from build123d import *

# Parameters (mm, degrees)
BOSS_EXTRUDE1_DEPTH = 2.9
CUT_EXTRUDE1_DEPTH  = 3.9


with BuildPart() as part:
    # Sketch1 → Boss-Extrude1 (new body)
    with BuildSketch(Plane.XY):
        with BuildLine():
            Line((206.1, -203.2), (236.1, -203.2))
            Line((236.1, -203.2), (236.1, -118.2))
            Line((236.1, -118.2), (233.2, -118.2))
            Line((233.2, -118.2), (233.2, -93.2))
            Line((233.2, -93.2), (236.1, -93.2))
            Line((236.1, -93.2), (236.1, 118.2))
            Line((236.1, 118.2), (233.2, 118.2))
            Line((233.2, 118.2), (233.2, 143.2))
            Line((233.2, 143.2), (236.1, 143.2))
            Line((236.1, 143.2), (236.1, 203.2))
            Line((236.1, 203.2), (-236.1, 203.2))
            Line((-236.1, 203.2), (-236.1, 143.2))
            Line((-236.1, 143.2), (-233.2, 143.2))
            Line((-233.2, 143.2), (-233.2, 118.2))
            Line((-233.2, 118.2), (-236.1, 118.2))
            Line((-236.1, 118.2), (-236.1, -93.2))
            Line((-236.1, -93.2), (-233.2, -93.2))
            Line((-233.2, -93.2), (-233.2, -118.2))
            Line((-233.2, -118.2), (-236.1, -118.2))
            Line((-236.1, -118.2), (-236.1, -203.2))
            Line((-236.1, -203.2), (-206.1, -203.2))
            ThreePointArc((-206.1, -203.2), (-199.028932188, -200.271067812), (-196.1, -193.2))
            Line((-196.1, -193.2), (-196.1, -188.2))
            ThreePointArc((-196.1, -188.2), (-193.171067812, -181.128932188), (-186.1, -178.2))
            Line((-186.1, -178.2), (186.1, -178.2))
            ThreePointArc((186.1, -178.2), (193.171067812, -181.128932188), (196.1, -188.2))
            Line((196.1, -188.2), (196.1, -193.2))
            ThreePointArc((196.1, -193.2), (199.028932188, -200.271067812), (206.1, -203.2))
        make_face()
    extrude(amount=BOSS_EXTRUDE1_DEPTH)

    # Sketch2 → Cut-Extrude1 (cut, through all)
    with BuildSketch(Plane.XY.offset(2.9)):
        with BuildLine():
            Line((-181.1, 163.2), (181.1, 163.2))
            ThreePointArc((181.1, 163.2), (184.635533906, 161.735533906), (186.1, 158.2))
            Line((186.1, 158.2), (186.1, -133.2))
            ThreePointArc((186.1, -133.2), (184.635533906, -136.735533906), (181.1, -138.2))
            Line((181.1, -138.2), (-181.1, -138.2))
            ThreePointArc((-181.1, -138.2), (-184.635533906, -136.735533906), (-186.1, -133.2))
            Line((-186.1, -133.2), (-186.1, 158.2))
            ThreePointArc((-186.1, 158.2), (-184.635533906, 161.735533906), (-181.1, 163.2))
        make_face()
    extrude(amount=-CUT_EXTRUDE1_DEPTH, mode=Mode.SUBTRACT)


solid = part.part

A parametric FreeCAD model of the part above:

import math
import FreeCAD as App
import Part
import Sketcher

V = App.Vector

doc = App.newDocument("Part")
body = doc.addObject("PartDesign::Body", "Body")

# Sketch on XY plane
sketch1 = body.newObject("Sketcher::SketchObject", "Sketch")
sketch1.AttachmentSupport = (doc.getObject("XY_Plane"), [""])
sketch1.MapMode = "FlatFace"
sketch1.addGeometry(Part.LineSegment(V(206.1, -203.2, 0), V(236.1, -203.2, 0)), False)
sketch1.addGeometry(Part.LineSegment(V(236.1, -203.2, 0), V(236.1, -118.2, 0)), False)
sketch1.addGeometry(Part.LineSegment(V(236.1, -118.2, 0), V(233.2, -118.2, 0)), False)
sketch1.addGeometry(Part.LineSegment(V(233.2, -118.2, 0), V(233.2, -93.2, 0)), False)
sketch1.addGeometry(Part.LineSegment(V(233.2, -93.2, 0), V(236.1, -93.2, 0)), False)
sketch1.addGeometry(Part.LineSegment(V(236.1, -93.2, 0), V(236.1, 118.2, 0)), False)
sketch1.addGeometry(Part.LineSegment(V(236.1, 118.2, 0), V(233.2, 118.2, 0)), False)
sketch1.addGeometry(Part.LineSegment(V(233.2, 118.2, 0), V(233.2, 143.2, 0)), False)
sketch1.addGeometry(Part.LineSegment(V(233.2, 143.2, 0), V(236.1, 143.2, 0)), False)
sketch1.addGeometry(Part.LineSegment(V(236.1, 143.2, 0), V(236.1, 203.2, 0)), False)
sketch1.addGeometry(Part.LineSegment(V(236.1, 203.2, 0), V(-236.1, 203.2, 0)), False)
sketch1.addGeometry(Part.LineSegment(V(-236.1, 203.2, 0), V(-236.1, 143.2, 0)), False)
sketch1.addGeometry(Part.LineSegment(V(-236.1, 143.2, 0), V(-233.2, 143.2, 0)), False)
sketch1.addGeometry(Part.LineSegment(V(-233.2, 143.2, 0), V(-233.2, 118.2, 0)), False)
sketch1.addGeometry(Part.LineSegment(V(-233.2, 118.2, 0), V(-236.1, 118.2, 0)), False)
sketch1.addGeometry(Part.LineSegment(V(-236.1, 118.2, 0), V(-236.1, -93.2, 0)), False)
sketch1.addGeometry(Part.LineSegment(V(-236.1, -93.2, 0), V(-233.2, -93.2, 0)), False)
sketch1.addGeometry(Part.LineSegment(V(-233.2, -93.2, 0), V(-233.2, -118.2, 0)), False)
sketch1.addGeometry(Part.LineSegment(V(-233.2, -118.2, 0), V(-236.1, -118.2, 0)), False)
sketch1.addGeometry(Part.LineSegment(V(-236.1, -118.2, 0), V(-236.1, -203.2, 0)), False)
sketch1.addGeometry(Part.LineSegment(V(-236.1, -203.2, 0), V(-206.1, -203.2, 0)), False)
sketch1.addGeometry(Part.ArcOfCircle(Part.Circle(V(-206.1, -193.2, 0), V(0, 0, 1), 10), math.radians(-90), math.radians(0)), False)
sketch1.addGeometry(Part.LineSegment(V(-196.1, -193.2, 0), V(-196.1, -188.2, 0)), False)
sketch1.addGeometry(Part.ArcOfCircle(Part.Circle(V(-186.1, -188.2, 0), V(0, 0, 1), 10), math.radians(90), math.radians(180)), False)
sketch1.addGeometry(Part.LineSegment(V(-186.1, -178.2, 0), V(186.1, -178.2, 0)), False)
sketch1.addGeometry(Part.ArcOfCircle(Part.Circle(V(186.1, -188.2, 0), V(0, 0, 1), 10), math.radians(0), math.radians(90)), False)
sketch1.addGeometry(Part.LineSegment(V(196.1, -188.2, 0), V(196.1, -193.2, 0)), False)
sketch1.addGeometry(Part.ArcOfCircle(Part.Circle(V(206.1, -193.2, 0), V(0, 0, 1), 10), math.radians(180), math.radians(270)), False)
sketch1.addConstraint(Sketcher.Constraint("Coincident", 0, 2, 1, 1))
sketch1.addConstraint(Sketcher.Constraint("Coincident", 1, 2, 2, 1))
sketch1.addConstraint(Sketcher.Constraint("Coincident", 2, 2, 3, 1))
sketch1.addConstraint(Sketcher.Constraint("Coincident", 3, 2, 4, 1))
sketch1.addConstraint(Sketcher.Constraint("Coincident", 4, 2, 5, 1))
sketch1.addConstraint(Sketcher.Constraint("Coincident", 5, 2, 6, 1))
sketch1.addConstraint(Sketcher.Constraint("Coincident", 6, 2, 7, 1))
sketch1.addConstraint(Sketcher.Constraint("Coincident", 7, 2, 8, 1))
sketch1.addConstraint(Sketcher.Constraint("Coincident", 8, 2, 9, 1))
sketch1.addConstraint(Sketcher.Constraint("Coincident", 9, 2, 10, 1))
sketch1.addConstraint(Sketcher.Constraint("Coincident", 10, 2, 11, 1))
sketch1.addConstraint(Sketcher.Constraint("Coincident", 11, 2, 12, 1))
sketch1.addConstraint(Sketcher.Constraint("Coincident", 12, 2, 13, 1))
sketch1.addConstraint(Sketcher.Constraint("Coincident", 13, 2, 14, 1))
sketch1.addConstraint(Sketcher.Constraint("Coincident", 14, 2, 15, 1))
sketch1.addConstraint(Sketcher.Constraint("Coincident", 15, 2, 16, 1))
sketch1.addConstraint(Sketcher.Constraint("Coincident", 16, 2, 17, 1))
sketch1.addConstraint(Sketcher.Constraint("Coincident", 17, 2, 18, 1))
sketch1.addConstraint(Sketcher.Constraint("Coincident", 18, 2, 19, 1))
sketch1.addConstraint(Sketcher.Constraint("Coincident", 19, 2, 20, 1))
sketch1.addConstraint(Sketcher.Constraint("Tangent", 20, 2, 21, 1))
sketch1.addConstraint(Sketcher.Constraint("Tangent", 21, 2, 22, 1))
sketch1.addConstraint(Sketcher.Constraint("Tangent", 22, 2, 23, 2))
sketch1.addConstraint(Sketcher.Constraint("Tangent", 23, 1, 24, 1))
sketch1.addConstraint(Sketcher.Constraint("Tangent", 24, 2, 25, 2))
sketch1.addConstraint(Sketcher.Constraint("Tangent", 25, 1, 26, 1))
sketch1.addConstraint(Sketcher.Constraint("Tangent", 26, 2, 27, 1))
sketch1.addConstraint(Sketcher.Constraint("Tangent", 27, 2, 0, 1))
sketch1.addConstraint(Sketcher.Constraint("Horizontal", 0))
sketch1.addConstraint(Sketcher.Constraint("Vertical", 1))
sketch1.addConstraint(Sketcher.Constraint("Horizontal", 2))
sketch1.addConstraint(Sketcher.Constraint("Vertical", 3))
sketch1.addConstraint(Sketcher.Constraint("Horizontal", 4))
sketch1.addConstraint(Sketcher.Constraint("Vertical", 5))
sketch1.addConstraint(Sketcher.Constraint("Horizontal", 6))
sketch1.addConstraint(Sketcher.Constraint("Vertical", 7))
sketch1.addConstraint(Sketcher.Constraint("Horizontal", 8))
sketch1.addConstraint(Sketcher.Constraint("Vertical", 9))
sketch1.addConstraint(Sketcher.Constraint("Horizontal", 10))
sketch1.addConstraint(Sketcher.Constraint("Vertical", 11))
sketch1.addConstraint(Sketcher.Constraint("Horizontal", 12))
sketch1.addConstraint(Sketcher.Constraint("Vertical", 13))
sketch1.addConstraint(Sketcher.Constraint("Horizontal", 14))
sketch1.addConstraint(Sketcher.Constraint("Vertical", 15))
sketch1.addConstraint(Sketcher.Constraint("Horizontal", 16))
sketch1.addConstraint(Sketcher.Constraint("Vertical", 17))
sketch1.addConstraint(Sketcher.Constraint("Horizontal", 18))
sketch1.addConstraint(Sketcher.Constraint("Vertical", 19))
sketch1.addConstraint(Sketcher.Constraint("Horizontal", 20))
sketch1.addConstraint(Sketcher.Constraint("Vertical", 22))
sketch1.addConstraint(Sketcher.Constraint("Horizontal", 24))
sketch1.addConstraint(Sketcher.Constraint("Vertical", 26))
sketch1.addConstraint(Sketcher.Constraint("Equal", 21, 23))
sketch1.addConstraint(Sketcher.Constraint("Equal", 23, 25))
sketch1.addConstraint(Sketcher.Constraint("Equal", 25, 27))
sketch1.addConstraint(Sketcher.Constraint("Symmetric", 0, 2, 10, 2, -1, 1))
sketch1.addConstraint(Sketcher.Constraint("Symmetric", 2, 2, 13, 2, -1, 1))
sketch1.addConstraint(Sketcher.Constraint("Symmetric", 6, 2, 17, 2, -1, 1))
sketch1.addConstraint(Sketcher.Constraint("Symmetric", 9, 2, 19, 2, -1, 1))
sketch1.addConstraint(Sketcher.Constraint("Symmetric", 8, 2, 11, 2, -2))
sketch1.addConstraint(Sketcher.Constraint("Symmetric", 6, 2, 13, 2, -2))
sketch1.addConstraint(Sketcher.Constraint("Symmetric", 4, 2, 15, 2, -2))
sketch1.addConstraint(Sketcher.Constraint("Vertical", 1, 2, 4, 2))
sketch1.addConstraint(Sketcher.Constraint("Equal", 0, 20))
sketch1.addConstraint(Sketcher.Constraint("Equal", 3, 7))
sketch1.addConstraint(Sketcher.Constraint("Radius", 21, 10.0))
sketch1.addConstraint(Sketcher.Constraint("DistanceX", 0, 1, 0, 2, 30.0))
sketch1.addConstraint(Sketcher.Constraint("DistanceY", 1, 1, 1, 2, 85.0))
sketch1.addConstraint(Sketcher.Constraint("DistanceY", 3, 1, 3, 2, 25.0))
sketch1.addConstraint(Sketcher.Constraint("DistanceY", 22, 1, 22, 2, 5.0))
sketch1.addConstraint(Sketcher.Constraint("DistanceX", 2, 2, 2, 1, 2.9))
sketch1.addConstraint(Sketcher.Constraint("DistanceX", 10, 2, 10, 1, 472.2))
sketch1.addConstraint(Sketcher.Constraint("DistanceY", 5, 1, 5, 2, 211.4))
pad1 = body.newObject("PartDesign::Pad", "Pad")
pad1.Profile = sketch1
pad1.Length = 2.9

# Sketch on XY plane
sketch2 = body.newObject("Sketcher::SketchObject", "Sketch001")
sketch2.AttachmentSupport = (doc.getObject("XY_Plane"), [""])
sketch2.MapMode = "FlatFace"
sketch2.AttachmentOffset = App.Placement(V(0, 0, 2.9), App.Rotation())
sketch2.addGeometry(Part.LineSegment(V(181.1, 163.2, 0), V(-181.1, 163.2, 0)), False)
sketch2.addGeometry(Part.ArcOfCircle(Part.Circle(V(-181.1, 158.2, 0), V(0, 0, 1), 5), math.radians(90), math.radians(180)), False)
sketch2.addGeometry(Part.LineSegment(V(-186.1, 158.2, 0), V(-186.1, -133.2, 0)), False)
sketch2.addGeometry(Part.ArcOfCircle(Part.Circle(V(-181.1, -133.2, 0), V(0, 0, 1), 5), math.radians(180), math.radians(270)), False)
sketch2.addGeometry(Part.LineSegment(V(-181.1, -138.2, 0), V(181.1, -138.2, 0)), False)
sketch2.addGeometry(Part.ArcOfCircle(Part.Circle(V(181.1, -133.2, 0), V(0, 0, 1), 5), math.radians(-90), math.radians(0)), False)
sketch2.addGeometry(Part.LineSegment(V(186.1, -133.2, 0), V(186.1, 158.2, 0)), False)
sketch2.addGeometry(Part.ArcOfCircle(Part.Circle(V(181.1, 158.2, 0), V(0, 0, 1), 5), math.radians(0), math.radians(90)), False)
sketch2.addConstraint(Sketcher.Constraint("Tangent", 0, 2, 1, 1))
sketch2.addConstraint(Sketcher.Constraint("Tangent", 1, 2, 2, 1))
sketch2.addConstraint(Sketcher.Constraint("Tangent", 2, 2, 3, 1))
sketch2.addConstraint(Sketcher.Constraint("Tangent", 3, 2, 4, 1))
sketch2.addConstraint(Sketcher.Constraint("Tangent", 4, 2, 5, 1))
sketch2.addConstraint(Sketcher.Constraint("Tangent", 5, 2, 6, 1))
sketch2.addConstraint(Sketcher.Constraint("Tangent", 6, 2, 7, 1))
sketch2.addConstraint(Sketcher.Constraint("Tangent", 7, 2, 0, 1))
sketch2.addConstraint(Sketcher.Constraint("Horizontal", 0))
sketch2.addConstraint(Sketcher.Constraint("Vertical", 2))
sketch2.addConstraint(Sketcher.Constraint("Horizontal", 4))
sketch2.addConstraint(Sketcher.Constraint("Vertical", 6))
sketch2.addConstraint(Sketcher.Constraint("Equal", 1, 3))
sketch2.addConstraint(Sketcher.Constraint("Equal", 3, 5))
sketch2.addConstraint(Sketcher.Constraint("Equal", 5, 7))
sketch2.addConstraint(Sketcher.Constraint("Radius", 1, 5.0))
sketch2.addConstraint(Sketcher.Constraint("DistanceX", 0, 2, 0, 1, 362.2))
sketch2.addConstraint(Sketcher.Constraint("DistanceY", 2, 2, 2, 1, 291.4))
sketch2.addConstraint(Sketcher.Constraint("DistanceX", 1, 3, -1, 1, 181.1))
sketch2.addConstraint(Sketcher.Constraint("DistanceY", -1, 1, 1, 3, 158.2))
pocket1 = body.newObject("PartDesign::Pocket", "Pocket")
pocket1.Profile = sketch2
pocket1.Type = "ThroughAll"

doc.recompute()
